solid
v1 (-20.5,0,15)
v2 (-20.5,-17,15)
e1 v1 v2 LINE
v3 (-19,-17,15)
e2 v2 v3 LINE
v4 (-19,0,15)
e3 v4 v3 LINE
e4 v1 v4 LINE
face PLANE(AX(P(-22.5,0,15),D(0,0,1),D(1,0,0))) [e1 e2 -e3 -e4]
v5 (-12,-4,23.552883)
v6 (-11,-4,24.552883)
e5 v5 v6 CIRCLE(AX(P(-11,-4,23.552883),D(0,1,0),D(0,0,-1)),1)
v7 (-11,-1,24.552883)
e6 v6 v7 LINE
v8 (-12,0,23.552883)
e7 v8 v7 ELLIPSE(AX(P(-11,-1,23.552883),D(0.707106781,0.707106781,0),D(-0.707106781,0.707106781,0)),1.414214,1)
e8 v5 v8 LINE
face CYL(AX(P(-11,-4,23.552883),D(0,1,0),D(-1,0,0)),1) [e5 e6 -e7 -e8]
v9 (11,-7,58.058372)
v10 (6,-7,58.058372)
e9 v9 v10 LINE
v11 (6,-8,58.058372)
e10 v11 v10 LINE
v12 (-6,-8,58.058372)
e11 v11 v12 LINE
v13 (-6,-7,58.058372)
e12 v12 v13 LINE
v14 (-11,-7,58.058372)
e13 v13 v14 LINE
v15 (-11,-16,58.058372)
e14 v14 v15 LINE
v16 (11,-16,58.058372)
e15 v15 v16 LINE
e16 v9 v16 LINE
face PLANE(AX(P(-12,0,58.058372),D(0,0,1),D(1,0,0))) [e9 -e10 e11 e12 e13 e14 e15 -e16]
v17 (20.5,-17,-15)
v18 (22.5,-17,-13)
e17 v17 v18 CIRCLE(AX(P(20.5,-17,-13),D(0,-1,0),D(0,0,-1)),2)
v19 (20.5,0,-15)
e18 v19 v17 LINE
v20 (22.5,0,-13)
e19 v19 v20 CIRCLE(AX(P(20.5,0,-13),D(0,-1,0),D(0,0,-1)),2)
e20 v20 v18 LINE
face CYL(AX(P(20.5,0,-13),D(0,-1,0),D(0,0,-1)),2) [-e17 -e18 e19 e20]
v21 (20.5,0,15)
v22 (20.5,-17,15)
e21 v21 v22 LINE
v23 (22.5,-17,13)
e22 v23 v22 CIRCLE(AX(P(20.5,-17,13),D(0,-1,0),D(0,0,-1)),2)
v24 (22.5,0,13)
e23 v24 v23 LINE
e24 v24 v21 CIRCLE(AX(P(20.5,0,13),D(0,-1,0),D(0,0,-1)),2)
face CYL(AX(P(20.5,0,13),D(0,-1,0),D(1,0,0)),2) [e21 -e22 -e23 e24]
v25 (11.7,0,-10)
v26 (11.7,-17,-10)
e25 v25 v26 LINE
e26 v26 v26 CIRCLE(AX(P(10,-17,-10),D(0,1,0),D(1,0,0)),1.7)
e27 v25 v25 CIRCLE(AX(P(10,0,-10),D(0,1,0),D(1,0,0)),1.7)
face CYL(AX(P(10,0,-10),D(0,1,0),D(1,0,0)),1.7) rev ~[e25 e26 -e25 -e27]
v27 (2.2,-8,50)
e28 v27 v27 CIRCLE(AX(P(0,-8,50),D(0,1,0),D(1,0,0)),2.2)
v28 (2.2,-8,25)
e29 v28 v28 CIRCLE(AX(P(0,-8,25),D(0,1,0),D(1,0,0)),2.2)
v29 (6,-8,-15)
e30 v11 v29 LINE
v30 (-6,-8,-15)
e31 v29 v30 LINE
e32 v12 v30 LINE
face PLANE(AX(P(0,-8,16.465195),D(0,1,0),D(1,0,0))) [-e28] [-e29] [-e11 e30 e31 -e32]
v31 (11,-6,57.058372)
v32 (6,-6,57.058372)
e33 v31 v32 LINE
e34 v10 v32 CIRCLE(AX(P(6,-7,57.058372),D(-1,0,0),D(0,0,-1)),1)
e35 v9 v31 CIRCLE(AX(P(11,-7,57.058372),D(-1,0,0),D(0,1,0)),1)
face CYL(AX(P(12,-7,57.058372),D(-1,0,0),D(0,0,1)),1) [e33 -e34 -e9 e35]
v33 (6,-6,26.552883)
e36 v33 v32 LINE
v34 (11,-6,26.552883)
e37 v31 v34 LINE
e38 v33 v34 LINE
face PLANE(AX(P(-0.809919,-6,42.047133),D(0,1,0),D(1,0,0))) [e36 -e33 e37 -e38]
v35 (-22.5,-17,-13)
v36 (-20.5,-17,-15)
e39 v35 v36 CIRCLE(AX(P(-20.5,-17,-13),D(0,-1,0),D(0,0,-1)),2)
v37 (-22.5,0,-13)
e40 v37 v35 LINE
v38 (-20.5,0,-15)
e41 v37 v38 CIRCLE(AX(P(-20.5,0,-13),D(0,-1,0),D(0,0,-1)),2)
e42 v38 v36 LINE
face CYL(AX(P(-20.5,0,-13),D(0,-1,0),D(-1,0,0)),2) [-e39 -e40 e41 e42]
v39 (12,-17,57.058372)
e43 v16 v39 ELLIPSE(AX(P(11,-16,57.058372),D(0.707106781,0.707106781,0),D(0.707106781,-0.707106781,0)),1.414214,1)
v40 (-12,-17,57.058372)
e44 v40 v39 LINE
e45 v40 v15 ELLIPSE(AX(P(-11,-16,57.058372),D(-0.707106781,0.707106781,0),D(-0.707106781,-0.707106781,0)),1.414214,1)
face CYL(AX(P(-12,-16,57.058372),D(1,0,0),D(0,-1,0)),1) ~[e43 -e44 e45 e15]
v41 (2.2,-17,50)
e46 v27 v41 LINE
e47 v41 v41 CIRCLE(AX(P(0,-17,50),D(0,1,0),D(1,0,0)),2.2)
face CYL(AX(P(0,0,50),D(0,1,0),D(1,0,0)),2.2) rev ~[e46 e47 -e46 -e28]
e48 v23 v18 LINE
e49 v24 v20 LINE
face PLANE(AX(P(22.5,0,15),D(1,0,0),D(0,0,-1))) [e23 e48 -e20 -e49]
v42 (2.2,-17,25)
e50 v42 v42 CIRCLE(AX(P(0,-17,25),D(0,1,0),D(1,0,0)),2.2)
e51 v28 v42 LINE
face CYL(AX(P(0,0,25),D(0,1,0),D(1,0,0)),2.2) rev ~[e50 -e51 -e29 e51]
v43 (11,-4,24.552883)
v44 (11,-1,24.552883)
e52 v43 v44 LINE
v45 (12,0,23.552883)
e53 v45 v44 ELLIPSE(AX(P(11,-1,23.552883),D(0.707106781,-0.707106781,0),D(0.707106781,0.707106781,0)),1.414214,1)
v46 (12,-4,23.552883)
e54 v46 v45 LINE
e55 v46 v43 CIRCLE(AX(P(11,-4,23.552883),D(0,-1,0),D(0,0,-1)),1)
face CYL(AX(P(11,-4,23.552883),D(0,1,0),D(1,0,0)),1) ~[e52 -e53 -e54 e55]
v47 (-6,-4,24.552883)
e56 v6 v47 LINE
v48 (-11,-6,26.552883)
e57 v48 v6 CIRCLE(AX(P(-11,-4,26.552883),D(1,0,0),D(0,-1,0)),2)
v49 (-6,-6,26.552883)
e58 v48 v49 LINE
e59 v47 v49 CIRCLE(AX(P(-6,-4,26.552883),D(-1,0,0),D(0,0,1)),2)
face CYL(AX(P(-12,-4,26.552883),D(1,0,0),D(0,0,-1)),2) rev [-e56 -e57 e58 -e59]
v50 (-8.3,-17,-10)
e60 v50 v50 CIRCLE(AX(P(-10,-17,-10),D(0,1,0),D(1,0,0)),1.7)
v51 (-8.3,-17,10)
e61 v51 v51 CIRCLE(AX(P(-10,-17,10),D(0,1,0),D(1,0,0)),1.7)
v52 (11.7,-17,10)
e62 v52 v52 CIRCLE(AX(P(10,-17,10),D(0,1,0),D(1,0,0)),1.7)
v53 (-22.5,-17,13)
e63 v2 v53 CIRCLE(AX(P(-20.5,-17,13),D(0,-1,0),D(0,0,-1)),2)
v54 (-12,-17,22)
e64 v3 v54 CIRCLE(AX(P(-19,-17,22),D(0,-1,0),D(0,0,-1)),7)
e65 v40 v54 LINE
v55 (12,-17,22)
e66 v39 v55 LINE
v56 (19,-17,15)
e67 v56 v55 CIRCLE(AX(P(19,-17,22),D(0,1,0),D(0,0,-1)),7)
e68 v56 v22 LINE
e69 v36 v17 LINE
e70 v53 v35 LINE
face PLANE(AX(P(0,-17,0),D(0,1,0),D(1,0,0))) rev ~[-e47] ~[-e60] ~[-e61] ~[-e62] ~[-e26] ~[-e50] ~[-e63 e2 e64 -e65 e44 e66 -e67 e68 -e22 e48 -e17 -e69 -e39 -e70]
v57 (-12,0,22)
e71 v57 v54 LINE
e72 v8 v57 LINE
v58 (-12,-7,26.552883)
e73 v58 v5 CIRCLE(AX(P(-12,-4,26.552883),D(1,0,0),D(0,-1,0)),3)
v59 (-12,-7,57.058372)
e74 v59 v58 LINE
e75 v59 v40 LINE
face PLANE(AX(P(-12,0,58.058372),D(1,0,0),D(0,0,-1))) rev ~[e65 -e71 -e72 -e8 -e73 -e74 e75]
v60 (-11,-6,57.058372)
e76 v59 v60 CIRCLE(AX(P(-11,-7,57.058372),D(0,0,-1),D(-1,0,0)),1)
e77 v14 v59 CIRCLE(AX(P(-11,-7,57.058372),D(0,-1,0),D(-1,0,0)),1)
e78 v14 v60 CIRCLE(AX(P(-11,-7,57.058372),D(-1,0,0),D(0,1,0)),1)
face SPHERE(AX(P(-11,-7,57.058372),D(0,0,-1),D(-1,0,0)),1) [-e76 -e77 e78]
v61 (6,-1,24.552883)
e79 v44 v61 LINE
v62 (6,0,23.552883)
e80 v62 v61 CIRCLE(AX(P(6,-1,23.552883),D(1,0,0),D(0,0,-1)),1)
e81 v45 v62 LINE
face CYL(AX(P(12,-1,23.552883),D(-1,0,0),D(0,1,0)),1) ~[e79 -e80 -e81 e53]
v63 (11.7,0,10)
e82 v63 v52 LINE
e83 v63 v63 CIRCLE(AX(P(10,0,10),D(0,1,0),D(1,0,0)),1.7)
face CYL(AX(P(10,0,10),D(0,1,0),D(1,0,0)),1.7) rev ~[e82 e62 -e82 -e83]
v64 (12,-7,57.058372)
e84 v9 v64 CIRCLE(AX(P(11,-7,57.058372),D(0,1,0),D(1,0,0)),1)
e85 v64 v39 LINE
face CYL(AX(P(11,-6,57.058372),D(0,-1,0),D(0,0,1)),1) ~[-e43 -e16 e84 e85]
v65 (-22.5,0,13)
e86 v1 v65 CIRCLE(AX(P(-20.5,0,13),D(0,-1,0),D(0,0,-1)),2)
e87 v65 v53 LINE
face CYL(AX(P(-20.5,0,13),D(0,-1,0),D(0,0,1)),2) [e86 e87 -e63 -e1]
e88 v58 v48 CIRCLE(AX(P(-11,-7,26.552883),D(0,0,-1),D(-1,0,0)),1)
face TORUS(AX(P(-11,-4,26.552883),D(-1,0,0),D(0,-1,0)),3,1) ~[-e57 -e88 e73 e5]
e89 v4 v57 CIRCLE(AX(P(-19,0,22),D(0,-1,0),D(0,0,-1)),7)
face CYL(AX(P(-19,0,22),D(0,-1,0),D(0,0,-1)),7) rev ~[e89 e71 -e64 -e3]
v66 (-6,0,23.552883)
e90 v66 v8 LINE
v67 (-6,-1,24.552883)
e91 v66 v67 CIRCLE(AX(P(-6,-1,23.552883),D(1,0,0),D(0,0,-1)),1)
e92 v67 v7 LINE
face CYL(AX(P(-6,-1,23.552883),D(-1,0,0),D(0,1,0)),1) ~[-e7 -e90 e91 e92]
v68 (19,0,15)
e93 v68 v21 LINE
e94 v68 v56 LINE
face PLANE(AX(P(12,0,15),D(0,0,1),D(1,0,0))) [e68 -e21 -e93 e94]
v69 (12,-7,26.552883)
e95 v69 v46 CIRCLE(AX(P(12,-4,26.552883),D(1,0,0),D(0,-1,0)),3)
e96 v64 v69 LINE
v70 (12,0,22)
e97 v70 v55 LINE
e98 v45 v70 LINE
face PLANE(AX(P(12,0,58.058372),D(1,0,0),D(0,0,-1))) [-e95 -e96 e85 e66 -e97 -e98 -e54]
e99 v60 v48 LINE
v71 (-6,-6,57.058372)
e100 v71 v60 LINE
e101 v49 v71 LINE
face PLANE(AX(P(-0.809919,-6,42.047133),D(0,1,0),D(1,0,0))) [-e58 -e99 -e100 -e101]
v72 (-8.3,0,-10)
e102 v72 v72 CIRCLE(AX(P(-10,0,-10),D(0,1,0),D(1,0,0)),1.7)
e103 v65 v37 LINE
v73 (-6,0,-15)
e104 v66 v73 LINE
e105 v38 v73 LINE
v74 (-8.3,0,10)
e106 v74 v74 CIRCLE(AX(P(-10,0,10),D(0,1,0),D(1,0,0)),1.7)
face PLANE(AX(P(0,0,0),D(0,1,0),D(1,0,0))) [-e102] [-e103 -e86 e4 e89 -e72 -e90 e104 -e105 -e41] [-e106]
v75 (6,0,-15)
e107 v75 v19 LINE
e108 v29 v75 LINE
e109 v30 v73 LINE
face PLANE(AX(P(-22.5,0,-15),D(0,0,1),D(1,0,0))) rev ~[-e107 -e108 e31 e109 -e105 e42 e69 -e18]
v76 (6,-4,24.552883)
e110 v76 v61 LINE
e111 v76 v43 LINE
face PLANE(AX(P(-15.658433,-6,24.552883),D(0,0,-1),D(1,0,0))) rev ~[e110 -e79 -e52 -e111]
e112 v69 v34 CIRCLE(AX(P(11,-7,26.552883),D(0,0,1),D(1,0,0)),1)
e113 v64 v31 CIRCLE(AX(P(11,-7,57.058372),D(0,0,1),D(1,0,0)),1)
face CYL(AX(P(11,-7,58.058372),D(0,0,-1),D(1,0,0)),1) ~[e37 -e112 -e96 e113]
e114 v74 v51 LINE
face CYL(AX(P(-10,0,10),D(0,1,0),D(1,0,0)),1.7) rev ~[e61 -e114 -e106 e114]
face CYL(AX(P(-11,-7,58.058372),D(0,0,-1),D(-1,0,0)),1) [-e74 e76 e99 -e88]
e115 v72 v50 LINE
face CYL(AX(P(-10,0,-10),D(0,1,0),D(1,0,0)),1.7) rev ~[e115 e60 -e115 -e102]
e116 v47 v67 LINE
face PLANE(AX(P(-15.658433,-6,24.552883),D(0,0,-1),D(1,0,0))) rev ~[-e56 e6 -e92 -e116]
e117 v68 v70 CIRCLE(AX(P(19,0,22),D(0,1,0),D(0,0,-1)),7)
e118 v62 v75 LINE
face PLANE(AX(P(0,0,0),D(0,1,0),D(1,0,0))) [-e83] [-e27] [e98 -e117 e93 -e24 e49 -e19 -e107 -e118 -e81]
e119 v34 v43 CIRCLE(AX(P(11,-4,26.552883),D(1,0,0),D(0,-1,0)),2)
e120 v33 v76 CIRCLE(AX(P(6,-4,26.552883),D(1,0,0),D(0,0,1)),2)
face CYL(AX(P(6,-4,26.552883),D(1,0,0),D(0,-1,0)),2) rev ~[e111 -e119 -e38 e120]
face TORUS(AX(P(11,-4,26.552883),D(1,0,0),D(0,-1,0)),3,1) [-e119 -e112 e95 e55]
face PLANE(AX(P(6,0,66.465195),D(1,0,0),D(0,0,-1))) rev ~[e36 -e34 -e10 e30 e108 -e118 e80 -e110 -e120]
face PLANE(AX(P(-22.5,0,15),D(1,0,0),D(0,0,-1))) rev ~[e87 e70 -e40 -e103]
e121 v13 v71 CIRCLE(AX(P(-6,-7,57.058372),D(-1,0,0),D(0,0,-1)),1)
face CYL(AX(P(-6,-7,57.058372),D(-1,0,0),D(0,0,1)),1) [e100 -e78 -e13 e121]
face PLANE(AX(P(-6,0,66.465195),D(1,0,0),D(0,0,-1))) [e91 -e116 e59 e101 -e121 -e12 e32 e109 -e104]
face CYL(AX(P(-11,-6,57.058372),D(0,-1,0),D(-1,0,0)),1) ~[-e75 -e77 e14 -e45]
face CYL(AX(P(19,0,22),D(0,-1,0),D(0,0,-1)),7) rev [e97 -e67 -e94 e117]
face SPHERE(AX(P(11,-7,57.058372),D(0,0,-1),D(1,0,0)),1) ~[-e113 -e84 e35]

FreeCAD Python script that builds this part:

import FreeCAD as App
import Part
import Sketcher
from FreeCAD import Vector


def edges_at(feature, points):
    """Names of the edges that pass closest to the given points."""
    edges = feature.Shape.Edges
    near = lambda p: min(range(len(edges)), key=lambda i: edges[i].distToShape(Part.Vertex(*p))[0])
    return sorted({f"Edge{near(p) + 1}" for p in points})


def add_polygon(sketch, points):
    """Adds a closed chain of lines whose ends are joined by coincident constraints."""
    first, n = sketch.GeometryCount, len(points)
    for a, b in zip(points, points[1:] + points[:1]):
        sketch.addGeometry(Part.LineSegment(App.Vector(*a, 0), App.Vector(*b, 0)), False)
    for i in range(n):
        sketch.addConstraint(Sketcher.Constraint("Coincident", first + i, 2, first + (i + 1) % n, 1))

doc = App.newDocument("Part")
params = doc.addObject("Spreadsheet::Sheet", "Params")
for row, (alias, value) in enumerate([
    ("sketch1_diameter", "4.4 mm"),
    ("sketch1_diameter2", "3.4 mm"),
    ("sketch1_width", "24 mm"),
    ("sketch1_width2", "45 mm"),
    ("sketch1_height", "30 mm"),
    ("pad1_length", "17 mm"),
    ("sketch2_width", "12 mm"),
    ("sketch2_height", "100 mm"),
    ("pocket1_length", "8 mm"),
    ("fillet_radius", "7 mm"),
    ("fillet2_radius", "2 mm"),
    ("fillet3_radius", "1 mm"),
], start=1):
    params.set(f"A{row}", alias)
    params.set(f"B{row}", "=" + value)
    params.setAlias(f"B{row}", alias)

body = doc.addObject("PartDesign::Body", "Body")

# Sketch on XZ plane
sketch1 = body.newObject("Sketcher::SketchObject", "Sketch")
sketch1.AttachmentSupport = (doc.getObject("XZ_Plane"), [""])
sketch1.MapMode = "FlatFace"
add_polygon(sketch1, [(-22.5, -15), (-22.5, 15), (-12, 15), (-12, 58.1), (12, 58.1), (12, 15), (22.5, 15), (22.5, -15)])  # lines 0-7
sketch1.addGeometry(Part.Circle(Vector(0, 50, 0), Vector(0, 0, 1), 2.2), False)  # 8
sketch1.addGeometry(Part.Circle(Vector(0, 25, 0), Vector(0, 0, 1), 2.2), False)  # 9
sketch1.addGeometry(Part.Circle(Vector(-10, 10, 0), Vector(0, 0, 1), 1.7), False)  # 10
sketch1.addGeometry(Part.Circle(Vector(-10, -10, 0), Vector(0, 0, 1), 1.7), False)  # 11
sketch1.addGeometry(Part.Circle(Vector(10, 10, 0), Vector(0, 0, 1), 1.7), False)  # 12
sketch1.addGeometry(Part.Circle(Vector(10, -10, 0), Vector(0, 0, 1), 1.7), False)  # 13
sketch1.addConstraint([
    Sketcher.Constraint("Vertical", 0),
    Sketcher.Constraint("Horizontal", 1),
    Sketcher.Constraint("Vertical", 2),
    Sketcher.Constraint("Horizontal", 3),
    Sketcher.Constraint("Vertical", 4),
    Sketcher.Constraint("Horizontal", 5),
    Sketcher.Constraint("Vertical", 6),
    Sketcher.Constraint("Horizontal", 7),
    Sketcher.Constraint("Equal", 8, 9),
    Sketcher.Constraint("Equal", 10, 11),
    Sketcher.Constraint("Equal", 11, 12),
    Sketcher.Constraint("Equal", 12, 13),
    Sketcher.Constraint("Symmetric", 11, 3, 12, 3, -1, 1),
    Sketcher.Constraint("Symmetric", 10, 3, 13, 3, -1, 1),
    Sketcher.Constraint("Symmetric", 0, 2, 6, 2, -1, 1),
    Sketcher.Constraint("Symmetric", 10, 3, 12, 3, -2),
    Sketcher.Constraint("Symmetric", 1, 2, 4, 2, -2),
    Sketcher.Constraint("PointOnObject", 8, 3, -2),
    Sketcher.Constraint("PointOnObject", 9, 3, -2),
    Sketcher.Constraint("Diameter", 8, 4.4),
    Sketcher.Constraint("Diameter", 10, 3.4),
    Sketcher.Constraint("DistanceX", 3, 1, 3, 2, 24.0),
    Sketcher.Constraint("DistanceX", 7, 2, 7, 1, 45.0),
    Sketcher.Constraint("DistanceY", 0, 1, 0, 2, 30.0),
    Sketcher.Constraint("DistanceY", -1, 1, 8, 3, 50.0),
    Sketcher.Constraint("DistanceY", -1, 1, 9, 3, 25.0),
    Sketcher.Constraint("DistanceX", 10, 3, -1, 1, 10.0),
    Sketcher.Constraint("DistanceY", -1, 1, 10, 3, 10.0),
    Sketcher.Constraint("DistanceY", 2, 1, 2, 2, 43.058372),
])
sketch1.setExpression("Constraints[27]", "Params.sketch1_diameter")
sketch1.setExpression("Constraints[28]", "Params.sketch1_diameter2")
sketch1.setExpression("Constraints[29]", "Params.sketch1_width")
sketch1.setExpression("Constraints[30]", "Params.sketch1_width2")
sketch1.setExpression("Constraints[31]", "Params.sketch1_height")
pad1 = body.newObject("PartDesign::Pad", "Pad")
pad1.Profile = sketch1
pad1.setExpression("Length", "Params.pad1_length")

# Sketch on XZ plane
sketch2 = body.newObject("Sketcher::SketchObject", "Sketch001")
sketch2.AttachmentSupport = (doc.getObject("XZ_Plane"), [""])
sketch2.MapMode = "FlatFace"
add_polygon(sketch2, [(-6, -34), (-6, 66), (6, 66), (6, -34)])  # lines 0-3
sketch2.addConstraint([
    Sketcher.Constraint("Vertical", 0),
    Sketcher.Constraint("Horizontal", 1),
    Sketcher.Constraint("Vertical", 2),
    Sketcher.Constraint("Horizontal", 3),
    Sketcher.Constraint("DistanceX", 1, 1, 1, 2, 12.0),
    Sketcher.Constraint("DistanceY", 0, 1, 0, 2, 100.0),
    Sketcher.Constraint("DistanceX", 0, 2, -1, 1, 6.0),
    Sketcher.Constraint("DistanceY", -1, 1, 0, 2, 66.465195),
])
sketch2.setExpression("Constraints[8]", "Params.sketch2_width")
sketch2.setExpression("Constraints[9]", "Params.sketch2_height")
pocket1 = body.newObject("PartDesign::Pocket", "Pocket")
pocket1.Profile = sketch2
pocket1.setExpression("Length", "Params.pocket1_length")
pocket1.Reversed = True

# Sketch on XZ plane
sketch3 = body.newObject("Sketcher::SketchObject", "Sketch002")
sketch3.AttachmentSupport = (doc.getObject("XZ_Plane"), [""])
sketch3.MapMode = "FlatFace"
sketch3.AttachmentOffset = App.Placement(Vector(0, 0, 6), App.Rotation())
add_polygon(sketch3, [(-16, 25), (-16, 60), (14, 60), (14, 25)])  # lines 0-3
sketch3.addConstraint([
    Sketcher.Constraint("Vertical", 0),
    Sketcher.Constraint("Horizontal", 1),
    Sketcher.Constraint("Vertical", 2),
    Sketcher.Constraint("Horizontal", 3),
    Sketcher.Constraint("DistanceY", 0, 1, 0, 2, 34.988499),
    Sketcher.Constraint("DistanceX", 1, 1, 1, 2, 29.697029),
    Sketcher.Constraint("DistanceX", 0, 2, -1, 1, 15.658433),
    Sketcher.Constraint("DistanceY", -1, 1, 0, 2, 59.541383),
])
pocket2 = body.newObject("PartDesign::Pocket", "Pocket001")
pocket2.Profile = sketch3
pocket2.Type = "ThroughAll"
doc.recompute()

fillet = body.newObject("PartDesign::Fillet", "Fillet")
fillet.Base = (pocket2, edges_at(pocket2, [(-12, -8.5, 15), (12, -8.5, 15)]))
fillet.setExpression("Radius", "Params.fillet_radius")
doc.recompute()

fillet2 = body.newObject("PartDesign::Fillet", "Fillet001")
fillet2.Base = (fillet, edges_at(fillet, [
    (22.5, -8.5, 15),
    (-22.5, -8.5, 15),
    (-22.5, -8.5, -15),
    (22.5, -8.5, -15),
    (9, -6, 24.553),
    (-9, -6, 24.553),
]))
fillet2.setExpression("Radius", "Params.fillet2_radius")
doc.recompute()

fillet3 = body.newObject("PartDesign::Fillet", "Fillet002")
fillet3.Base = (fillet2, edges_at(fillet2, [
    (-12, -2, 24.553),
    (12, -2, 24.553),
    (-12, -5.414, 25.139),
    (12, -5.414, 25.139),
    (-12, -11.5, 58.058),
    (12, -11.5, 58.058),
    (0, -17, 58.058),
    (9, 0, 24.553),
    (9, -6, 58.058),
    (12, -6, 42.306),
    (-9, 0, 24.553),
    (-9, -6, 58.058),
    (-12, -6, 42.306),
]))
fillet3.setExpression("Radius", "Params.fillet3_radius")

doc.recompute()
